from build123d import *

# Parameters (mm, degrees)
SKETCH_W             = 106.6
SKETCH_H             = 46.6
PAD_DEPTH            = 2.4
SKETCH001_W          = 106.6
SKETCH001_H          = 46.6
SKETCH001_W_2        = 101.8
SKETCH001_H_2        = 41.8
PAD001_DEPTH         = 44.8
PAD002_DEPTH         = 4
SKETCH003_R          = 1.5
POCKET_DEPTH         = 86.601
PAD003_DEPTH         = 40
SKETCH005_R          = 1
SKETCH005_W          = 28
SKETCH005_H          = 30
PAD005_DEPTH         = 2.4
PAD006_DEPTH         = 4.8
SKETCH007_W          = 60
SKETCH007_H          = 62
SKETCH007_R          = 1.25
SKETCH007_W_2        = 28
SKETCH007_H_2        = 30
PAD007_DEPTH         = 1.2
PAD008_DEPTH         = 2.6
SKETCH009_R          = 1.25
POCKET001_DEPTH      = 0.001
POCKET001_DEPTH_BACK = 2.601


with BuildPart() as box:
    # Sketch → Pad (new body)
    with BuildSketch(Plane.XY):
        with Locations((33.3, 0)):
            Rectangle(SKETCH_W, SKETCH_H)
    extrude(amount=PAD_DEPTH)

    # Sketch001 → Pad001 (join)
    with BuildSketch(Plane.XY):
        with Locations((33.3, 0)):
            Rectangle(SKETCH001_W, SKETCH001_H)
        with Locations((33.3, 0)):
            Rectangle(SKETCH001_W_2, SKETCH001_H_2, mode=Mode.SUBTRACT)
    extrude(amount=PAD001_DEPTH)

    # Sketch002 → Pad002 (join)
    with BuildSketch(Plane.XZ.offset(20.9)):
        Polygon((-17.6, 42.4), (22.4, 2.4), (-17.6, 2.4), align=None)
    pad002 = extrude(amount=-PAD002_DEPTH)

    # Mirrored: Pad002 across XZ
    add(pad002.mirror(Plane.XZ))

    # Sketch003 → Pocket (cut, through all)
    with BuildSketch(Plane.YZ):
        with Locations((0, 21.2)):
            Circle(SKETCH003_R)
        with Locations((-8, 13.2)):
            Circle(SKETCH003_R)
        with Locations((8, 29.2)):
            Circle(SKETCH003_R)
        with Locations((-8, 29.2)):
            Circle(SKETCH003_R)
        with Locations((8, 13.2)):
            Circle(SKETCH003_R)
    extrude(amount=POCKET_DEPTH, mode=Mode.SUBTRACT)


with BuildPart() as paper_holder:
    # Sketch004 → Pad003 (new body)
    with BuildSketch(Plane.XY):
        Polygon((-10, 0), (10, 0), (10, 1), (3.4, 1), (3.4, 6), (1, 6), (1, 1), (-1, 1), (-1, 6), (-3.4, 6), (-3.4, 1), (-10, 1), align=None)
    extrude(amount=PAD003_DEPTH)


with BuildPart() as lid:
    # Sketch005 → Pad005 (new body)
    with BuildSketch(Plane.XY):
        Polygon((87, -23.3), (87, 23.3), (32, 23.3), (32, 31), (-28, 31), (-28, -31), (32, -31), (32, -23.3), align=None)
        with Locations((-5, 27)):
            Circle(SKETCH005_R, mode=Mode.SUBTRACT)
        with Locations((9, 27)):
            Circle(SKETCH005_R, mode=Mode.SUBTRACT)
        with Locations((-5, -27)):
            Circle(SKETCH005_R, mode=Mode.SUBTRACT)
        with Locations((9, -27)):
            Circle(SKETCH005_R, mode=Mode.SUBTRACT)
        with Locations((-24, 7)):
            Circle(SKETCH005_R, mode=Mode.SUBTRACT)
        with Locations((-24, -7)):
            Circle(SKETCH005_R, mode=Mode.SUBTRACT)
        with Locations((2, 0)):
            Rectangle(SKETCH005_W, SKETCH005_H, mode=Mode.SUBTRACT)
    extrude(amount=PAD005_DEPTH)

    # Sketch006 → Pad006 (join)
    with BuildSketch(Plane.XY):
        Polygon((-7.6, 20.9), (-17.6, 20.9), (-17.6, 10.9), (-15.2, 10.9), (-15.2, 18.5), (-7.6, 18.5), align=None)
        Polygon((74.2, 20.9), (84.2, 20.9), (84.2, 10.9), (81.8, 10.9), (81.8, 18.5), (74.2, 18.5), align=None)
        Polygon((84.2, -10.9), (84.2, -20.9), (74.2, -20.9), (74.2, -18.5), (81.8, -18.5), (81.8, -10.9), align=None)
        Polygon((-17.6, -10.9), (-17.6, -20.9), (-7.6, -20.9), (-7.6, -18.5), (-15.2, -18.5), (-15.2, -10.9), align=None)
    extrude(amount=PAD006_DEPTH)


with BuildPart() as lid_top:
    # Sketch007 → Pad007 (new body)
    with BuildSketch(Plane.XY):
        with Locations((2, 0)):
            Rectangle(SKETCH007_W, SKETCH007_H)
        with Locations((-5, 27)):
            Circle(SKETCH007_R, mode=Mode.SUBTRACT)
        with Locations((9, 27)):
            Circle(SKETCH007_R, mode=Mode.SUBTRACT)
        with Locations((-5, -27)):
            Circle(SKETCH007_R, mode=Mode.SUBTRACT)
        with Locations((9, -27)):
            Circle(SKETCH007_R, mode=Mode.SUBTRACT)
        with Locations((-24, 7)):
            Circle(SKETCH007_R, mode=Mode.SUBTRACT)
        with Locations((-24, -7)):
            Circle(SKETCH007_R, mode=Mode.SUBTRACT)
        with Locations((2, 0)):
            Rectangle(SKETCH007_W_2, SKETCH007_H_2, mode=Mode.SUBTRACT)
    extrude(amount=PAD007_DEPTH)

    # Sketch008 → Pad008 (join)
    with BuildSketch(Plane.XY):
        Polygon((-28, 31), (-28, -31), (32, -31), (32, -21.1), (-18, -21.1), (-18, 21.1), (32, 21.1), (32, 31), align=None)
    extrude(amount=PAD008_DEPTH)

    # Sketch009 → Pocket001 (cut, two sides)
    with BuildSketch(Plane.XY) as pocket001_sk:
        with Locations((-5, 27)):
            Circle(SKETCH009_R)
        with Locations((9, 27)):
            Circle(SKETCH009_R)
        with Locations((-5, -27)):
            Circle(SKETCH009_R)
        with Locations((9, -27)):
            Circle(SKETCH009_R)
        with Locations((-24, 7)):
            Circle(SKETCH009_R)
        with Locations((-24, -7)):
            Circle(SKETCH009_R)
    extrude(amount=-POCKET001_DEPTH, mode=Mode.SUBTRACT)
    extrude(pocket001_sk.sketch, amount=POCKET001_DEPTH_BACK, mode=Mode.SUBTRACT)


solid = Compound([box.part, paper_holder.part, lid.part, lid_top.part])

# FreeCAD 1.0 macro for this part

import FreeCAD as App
import Part
import Sketcher
from FreeCAD import Vector


def add_polygon(sketch, points):
    """Adds a closed chain of lines whose ends are joined by coincident constraints."""
    first, n = sketch.GeometryCount, len(points)
    for a, b in zip(points, points[1:] + points[:1]):
        sketch.addGeometry(Part.LineSegment(App.Vector(*a, 0), App.Vector(*b, 0)), False)
    for i in range(n):
        sketch.addConstraint(Sketcher.Constraint("Coincident", first + i, 2, first + (i + 1) % n, 1))

doc = App.newDocument("Part")
body = doc.addObject("PartDesign::Body", "Body")

sketch1 = body.newObject("Sketcher::SketchObject", "Sketch")
sketch1.AttachmentSupport = (doc.getObject("XY_Plane"), [""])
sketch1.MapMode = "FlatFace"
add_polygon(sketch1, [(-20, 23.3), (-20, -23.3), (86.6, -23.3), (86.6, 23.3)])
sketch1.addConstraint([
    Sketcher.Constraint("Vertical", 0),
    Sketcher.Constraint("Horizontal", 1),
    Sketcher.Constraint("Vertical", 2),
    Sketcher.Constraint("Horizontal", 3),
    Sketcher.Constraint("DistanceX", 1, 1, 1, 2, 106.6),
    Sketcher.Constraint("DistanceY", 0, 2, 0, 1, 46.6),
    Sketcher.Constraint("DistanceX", 0, 2, -1, 1, 20.0),
    Sketcher.Constraint("DistanceY", 0, 2, -1, 1, 23.3),
])
pad1 = body.newObject("PartDesign::Pad", "Pad")
pad1.Profile = sketch1
pad1.Length = 2.4

sketch2 = body.newObject("Sketcher::SketchObject", "Sketch001")
sketch2.AttachmentSupport = (doc.getObject("XY_Plane"), [""])
sketch2.MapMode = "FlatFace"
add_polygon(sketch2, [(-20, 23.3), (-20, -23.3), (86.6, -23.3), (86.6, 23.3)])
add_polygon(sketch2, [(84.2, -20.9), (-17.6, -20.9), (-17.6, 20.9), (84.2, 20.9)])
sketch2.addConstraint([
    Sketcher.Constraint("Vertical", 0),
    Sketcher.Constraint("Horizontal", 1),
    Sketcher.Constraint("Vertical", 2),
    Sketcher.Constraint("Horizontal", 3),
    Sketcher.Constraint("Horizontal", 4),
    Sketcher.Constraint("Vertical", 5),
    Sketcher.Constraint("Horizontal", 6),
    Sketcher.Constraint("Vertical", 7),
    Sketcher.Constraint("DistanceX", 1, 1, 1, 2, 106.6),
    Sketcher.Constraint("DistanceX", 4, 2, 4, 1, 101.8),
    Sketcher.Constraint("DistanceY", 0, 2, 0, 1, 46.6),
    Sketcher.Constraint("DistanceY", 5, 1, 5, 2, 41.8),
    Sketcher.Constraint("DistanceX", 0, 2, -1, 1, 20.0),
    Sketcher.Constraint("DistanceY", 0, 2, -1, 1, 23.3),
    Sketcher.Constraint("DistanceX", 4, 2, -1, 1, 17.6),
    Sketcher.Constraint("DistanceY", 4, 2, -1, 1, 20.9),
])
pad2 = body.newObject("PartDesign::Pad", "Pad001")
pad2.Profile = sketch2
pad2.Length = 44.8

sketch3 = body.newObject("Sketcher::SketchObject", "Sketch002")
sketch3.AttachmentSupport = (doc.getObject("XZ_Plane"), [""])
sketch3.MapMode = "FlatFace"
sketch3.AttachmentOffset = App.Placement(Vector(0, 0, 20.9), App.Rotation())
add_polygon(sketch3, [(22.4, 2.4), (-17.6, 42.4), (-17.6, 2.4)])
sketch3.addConstraint([
    Sketcher.Constraint("Vertical", 1),
    Sketcher.Constraint("Horizontal", 2),
    Sketcher.Constraint("Equal", 2, 1),
    Sketcher.Constraint("DistanceX", 2, 1, 2, 2, 40.0),
    Sketcher.Constraint("DistanceX", 0, 2, -1, 1, 17.6),
    Sketcher.Constraint("DistanceY", -1, 1, 0, 2, 42.4),
])
pad3 = body.newObject("PartDesign::Pad", "Pad002")
pad3.Profile = sketch3
pad3.Length = 4
pad3.Reversed = True
doc.recompute()

mirrored = body.newObject("PartDesign::Mirrored", "Mirrored")
mirrored.Originals = [pad3]
mirrored.MirrorPlane = (doc.getObject("XZ_Plane"), [""])
body.Tip = mirrored

sketch4 = body.newObject("Sketcher::SketchObject", "Sketch003")
sketch4.AttachmentSupport = (doc.getObject("YZ_Plane"), [""])
sketch4.MapMode = "FlatFace"
sketch4.addGeometry([
    Part.Circle(Vector(0, 21.2, 0), Vector(0, 0, 1), 1.5),
    Part.Circle(Vector(-8, 13.2, 0), Vector(0, 0, 1), 1.5),
    Part.Circle(Vector(8, 29.2, 0), Vector(0, 0, 1), 1.5),
    Part.Circle(Vector(-8, 29.2, 0), Vector(0, 0, 1), 1.5),
    Part.Circle(Vector(8, 13.2, 0), Vector(0, 0, 1), 1.5),
], False)
sketch4.addConstraint([
    Sketcher.Constraint("Equal", 0, 1),
    Sketcher.Constraint("Equal", 1, 2),
    Sketcher.Constraint("Equal", 2, 3),
    Sketcher.Constraint("Equal", 3, 4),
    Sketcher.Constraint("Symmetric", 2, 3, 3, 3, -2),
    Sketcher.Constraint("Symmetric", 1, 3, 4, 3, -2),
    Sketcher.Constraint("PointOnObject", 0, 3, -2),
    Sketcher.Constraint("Vertical", 1, 3, 3, 3),
    Sketcher.Constraint("Diameter", 0, 3.0),
    Sketcher.Constraint("DistanceX", 1, 3, -1, 1, 8.0),
    Sketcher.Constraint("DistanceY", 1, 3, 0, 3, 8.0),
    Sketcher.Constraint("DistanceY", 0, 3, 2, 3, 8.0),
    Sketcher.Constraint("DistanceY", -1, 1, 0, 3, 21.2),
])
pocket1 = body.newObject("PartDesign::Pocket", "Pocket")
pocket1.Profile = sketch4
pocket1.Type = "ThroughAll"
pocket1.Reversed = True
body2 = doc.addObject("PartDesign::Body", "Body001")

sketch5 = body2.newObject("Sketcher::SketchObject", "Sketch004")
sketch5.AttachmentSupport = (doc.getObject("XY_Plane001"), [""])
sketch5.MapMode = "FlatFace"
add_polygon(sketch5, [(-10, 0), (10, 0), (10, 1), (3.4, 1), (3.4, 6), (1, 6), (1, 1), (-1, 1), (-1, 6), (-3.4, 6), (-3.4, 1), (-10, 1)])
sketch5.addConstraint([
    Sketcher.Constraint("Horizontal", 0),
    Sketcher.Constraint("Vertical", 1),
    Sketcher.Constraint("Horizontal", 2),
    Sketcher.Constraint("Vertical", 3),
    Sketcher.Constraint("Horizontal", 4),
    Sketcher.Constraint("Vertical", 5),
    Sketcher.Constraint("Horizontal", 6),
    Sketcher.Constraint("Vertical", 7),
    Sketcher.Constraint("Horizontal", 8),
    Sketcher.Constraint("Vertical", 9),
    Sketcher.Constraint("Horizontal", 10),
    Sketcher.Constraint("Vertical", 11),
    Sketcher.Constraint("Symmetric", 0, 2, 11, 2, -1, 1),
    Sketcher.Constraint("Symmetric", 4, 2, 7, 2, -2),
    Sketcher.Constraint("Symmetric", 2, 2, 9, 2, -2),
    Sketcher.Constraint("Horizontal", 2, 2, 5, 2),
    Sketcher.Constraint("DistanceX", 0, 1, 0, 2, 20.0),
    Sketcher.Constraint("DistanceX", 6, 2, 6, 1, 2.0),
    Sketcher.Constraint("DistanceY", 1, 1, 1, 2, 1.0),
    Sketcher.Constraint("DistanceY", 3, 1, 3, 2, 5.0),
    Sketcher.Constraint("DistanceX", 2, 2, 2, 1, 6.6),
])
pad4 = body2.newObject("PartDesign::Pad", "Pad003")
pad4.Profile = sketch5
pad4.Length = 40
body3 = doc.addObject("PartDesign::Body", "Body002")

sketch6 = body3.newObject("Sketcher::SketchObject", "Sketch005")
sketch6.AttachmentSupport = (doc.getObject("XY_Plane002"), [""])
sketch6.MapMode = "FlatFace"
add_polygon(sketch6, [(87, -23.3), (87, 23.3), (32, 23.3), (32, 31), (-28, 31), (-28, -31), (32, -31), (32, -23.3)])
sketch6.addGeometry(Part.Circle(Vector(-5, -27, 0), Vector(0, 0, 1), 1), False)
sketch6.addGeometry(Part.Circle(Vector(-24, -7, 0), Vector(0, 0, 1), 1), False)
sketch6.addGeometry(Part.Circle(Vector(9, -27, 0), Vector(0, 0, 1), 1), False)
sketch6.addGeometry(Part.Circle(Vector(-24, 7, 0), Vector(0, 0, 1), 1), False)
sketch6.addGeometry(Part.Circle(Vector(-5, 27, 0), Vector(0, 0, 1), 1), False)
add_polygon(sketch6, [(16, -15), (-12, -15), (-12, 15), (16, 15)])
sketch6.addGeometry(Part.Circle(Vector(9, 27, 0), Vector(0, 0, 1), 1), False)
sketch6.addConstraint([
    Sketcher.Constraint("Vertical", 0),
    Sketcher.Constraint("Horizontal", 1),
    Sketcher.Constraint("Vertical", 2),
    Sketcher.Constraint("Horizontal", 3),
    Sketcher.Constraint("Vertical", 4),
    Sketcher.Constraint("Horizontal", 5),
    Sketcher.Constraint("Vertical", 6),
    Sketcher.Constraint("Horizontal", 7),
    Sketcher.Constraint("Horizontal", 13),
    Sketcher.Constraint("Vertical", 14),
    Sketcher.Constraint("Horizontal", 15),
    Sketcher.Constraint("Vertical", 16),
    Sketcher.Constraint("Equal", 8, 9),
    Sketcher.Constraint("Equal", 9, 10),
    Sketcher.Constraint("Equal", 10, 11),
    Sketcher.Constraint("Equal", 11, 12),
    Sketcher.Constraint("Equal", 12, 17),
    Sketcher.Constraint("Symmetric", 9, 3, 11, 3, -1),
    Sketcher.Constraint("Symmetric", 8, 3, 12, 3, -1),
    Sketcher.Constraint("Symmetric", 10, 3, 17, 3, -1),
    Sketcher.Constraint("Symmetric", 2, 2, 5, 2, -1),
    Sketcher.Constraint("Horizontal", 8, 3, 10, 3),
    Sketcher.Constraint("Equal", 2, 6),
    Sketcher.Constraint("Diameter", 8, 2.0),
    Sketcher.Constraint("DistanceX", 1, 2, 1, 1, 55.0),
    Sketcher.Constraint("DistanceX", 3, 2, 3, 1, 60.0),
    Sketcher.Constraint("DistanceX", 13, 2, 13, 1, 28.0),
    Sketcher.Constraint("DistanceY", 4, 2, 4, 1, 62.0),
    Sketcher.Constraint("DistanceY", 14, 1, 14, 2, 30.0),
    Sketcher.Constraint("DistanceY", 0, 1, 0, 2, 46.6),
    Sketcher.Constraint("DistanceX", 8, 3, -1, 1, 5.0),
    Sketcher.Constraint("DistanceY", 8, 3, -1, 1, 27.0),
    Sketcher.Constraint("DistanceX", 9, 3, -1, 1, 24.0),
    Sketcher.Constraint("DistanceY", 9, 3, -1, 1, 7.0),
    Sketcher.Constraint("DistanceX", -1, 1, 10, 3, 9.0),
    Sketcher.Constraint("DistanceX", -1, 1, 0, 2, 87.0),
    Sketcher.Constraint("DistanceX", 13, 2, -1, 1, 12.0),
    Sketcher.Constraint("DistanceY", 13, 2, -1, 1, 15.0),
])
pad5 = body3.newObject("PartDesign::Pad", "Pad004")
pad5.Profile = sketch6
pad5.Length = 2.4

sketch7 = body3.newObject("Sketcher::SketchObject", "Sketch006")
sketch7.AttachmentSupport = (doc.getObject("XY_Plane002"), [""])
sketch7.MapMode = "FlatFace"
add_polygon(sketch7, [(-7.6, 20.9), (-17.6, 20.9), (-17.6, 10.9), (-15.2, 10.9), (-15.2, 18.5), (-7.6, 18.5)])
add_polygon(sketch7, [(84.2, 20.9), (74.2, 20.9), (74.2, 18.5), (81.8, 18.5), (81.8, 10.9), (84.2, 10.9)])
add_polygon(sketch7, [(84.2, -20.9), (84.2, -10.9), (81.8, -10.9), (81.8, -18.5), (74.2, -18.5), (74.2, -20.9)])
add_polygon(sketch7, [(-17.6, -10.9), (-17.6, -20.9), (-7.6, -20.9), (-7.6, -18.5), (-15.2, -18.5), (-15.2, -10.9)])
sketch7.addConstraint([
    Sketcher.Constraint("Horizontal", 0),
    Sketcher.Constraint("Vertical", 1),
    Sketcher.Constraint("Horizontal", 2),
    Sketcher.Constraint("Vertical", 3),
    Sketcher.Constraint("Horizontal", 4),
    Sketcher.Constraint("Vertical", 5),
    Sketcher.Constraint("Horizontal", 6),
    Sketcher.Constraint("Vertical", 7),
    Sketcher.Constraint("Horizontal", 8),
    Sketcher.Constraint("Vertical", 9),
    Sketcher.Constraint("Horizontal", 10),
    Sketcher.Constraint("Vertical", 11),
    Sketcher.Constraint("Vertical", 12),
    Sketcher.Constraint("Horizontal", 13),
    Sketcher.Constraint("Vertical", 14),
    Sketcher.Constraint("Horizontal", 15),
    Sketcher.Constraint("Vertical", 16),
    Sketcher.Constraint("Horizontal", 17),
    Sketcher.Constraint("Vertical", 18),
    Sketcher.Constraint("Horizontal", 19),
    Sketcher.Constraint("Vertical", 20),
    Sketcher.Constraint("Horizontal", 21),
    Sketcher.Constraint("Vertical", 22),
    Sketcher.Constraint("Horizontal", 23),
    Sketcher.Constraint("Symmetric", 10, 2, 12, 2, -1),
    Sketcher.Constraint("Symmetric", 8, 2, 14, 2, -1),
    Sketcher.Constraint("Symmetric", 6, 2, 16, 2, -1),
    Sketcher.Constraint("Symmetric", 0, 2, 18, 2, -1),
    Sketcher.Constraint("Symmetric", 4, 2, 20, 2, -1),
    Sketcher.Constraint("Symmetric", 2, 2, 22, 2, -1),
    Sketcher.Constraint("Horizontal", 5, 2, 6, 2),
    Sketcher.Constraint("Horizontal", 4, 2, 7, 2),
    Sketcher.Constraint("Horizontal", 2, 2, 9, 2),
    Sketcher.Constraint("Equal", 0, 6),
    Sketcher.Constraint("Equal", 4, 8),
    Sketcher.Constraint("Equal", 19, 1),
    Sketcher.Constraint("Equal", 21, 3),
    Sketcher.Constraint("DistanceX", 0, 2, 0, 1, 10.0),
    Sketcher.Constraint("DistanceX", 2, 1, 2, 2, 2.4),
    Sketcher.Constraint("DistanceX", 3, 2, 8, 2, 97.0),
    Sketcher.Constraint("DistanceY", 14, 2, 8, 2, 37.0),
    Sketcher.Constraint("DistanceX", 0, 2, -1, 1, 17.6),
])
pad6 = body3.newObject("PartDesign::Pad", "Pad005")
pad6.Profile = sketch7
pad6.Length = 4.8
body4 = doc.addObject("PartDesign::Body", "Body003")

sketch8 = body4.newObject("Sketcher::SketchObject", "Sketch007")
sketch8.AttachmentSupport = (doc.getObject("XY_Plane003"), [""])
sketch8.MapMode = "FlatFace"
add_polygon(sketch8, [(-28, 31), (-28, -31), (32, -31), (32, 31)])
sketch8.addGeometry(Part.Circle(Vector(-5, -27, 0), Vector(0, 0, 1), 1.25), False)
sketch8.addGeometry(Part.Circle(Vector(-24, -7, 0), Vector(0, 0, 1), 1.25), False)
sketch8.addGeometry(Part.Circle(Vector(9, -27, 0), Vector(0, 0, 1), 1.25), False)
sketch8.addGeometry(Part.Circle(Vector(-24, 7, 0), Vector(0, 0, 1), 1.25), False)
sketch8.addGeometry(Part.Circle(Vector(-5, 27, 0), Vector(0, 0, 1), 1.25), False)
add_polygon(sketch8, [(16, -15), (-12, -15), (-12, 15), (16, 15)])
sketch8.addGeometry(Part.Circle(Vector(9, 27, 0), Vector(0, 0, 1), 1.25), False)
sketch8.addConstraint([
    Sketcher.Constraint("Vertical", 0),
    Sketcher.Constraint("Horizontal", 1),
    Sketcher.Constraint("Vertical", 2),
    Sketcher.Constraint("Horizontal", 3),
    Sketcher.Constraint("Horizontal", 9),
    Sketcher.Constraint("Vertical", 10),
    Sketcher.Constraint("Horizontal", 11),
    Sketcher.Constraint("Vertical", 12),
    Sketcher.Constraint("Equal", 4, 5),
    Sketcher.Constraint("Equal", 5, 6),
    Sketcher.Constraint("Equal", 6, 7),
    Sketcher.Constraint("Equal", 7, 8),
    Sketcher.Constraint("Equal", 8, 13),
    Sketcher.Constraint("Symmetric", 5, 3, 7, 3, -1),
    Sketcher.Constraint("Symmetric", 4, 3, 8, 3, -1),
    Sketcher.Constraint("Symmetric", 6, 3, 13, 3, -1),
    Sketcher.Constraint("Horizontal", 4, 3, 6, 3),
    Sketcher.Constraint("Diameter", 4, 2.5),
    Sketcher.Constraint("DistanceX", 1, 1, 1, 2, 60.0),
    Sketcher.Constraint("DistanceX", 9, 2, 9, 1, 28.0),
    Sketcher.Constraint("DistanceY", 0, 2, 0, 1, 62.0),
    Sketcher.Constraint("DistanceY", 10, 1, 10, 2, 30.0),
    Sketcher.Constraint("DistanceX", 4, 3, -1, 1, 5.0),
    Sketcher.Constraint("DistanceY", 4, 3, -1, 1, 27.0),
    Sketcher.Constraint("DistanceX", 5, 3, -1, 1, 24.0),
    Sketcher.Constraint("DistanceY", 5, 3, -1, 1, 7.0),
    Sketcher.Constraint("DistanceX", -1, 1, 6, 3, 9.0),
    Sketcher.Constraint("DistanceX", 0, 2, -1, 1, 28.0),
    Sketcher.Constraint("DistanceY", 0, 2, -1, 1, 31.0),
    Sketcher.Constraint("DistanceX", 9, 2, -1, 1, 12.0),
    Sketcher.Constraint("DistanceY", 9, 2, -1, 1, 15.0),
])
pad7 = body4.newObject("PartDesign::Pad", "Pad006")
pad7.Profile = sketch8
pad7.Length = 1.2

sketch9 = body4.newObject("Sketcher::SketchObject", "Sketch008")
sketch9.AttachmentSupport = (doc.getObject("XY_Plane003"), [""])
sketch9.MapMode = "FlatFace"
add_polygon(sketch9, [(-28, 31), (-28, -31), (32, -31), (32, -21.1), (-18, -21.1), (-18, 21.1), (32, 21.1), (32, 31)])
sketch9.addConstraint([
    Sketcher.Constraint("Vertical", 0),
    Sketcher.Constraint("Horizontal", 1),
    Sketcher.Constraint("Vertical", 2),
    Sketcher.Constraint("Horizontal", 3),
    Sketcher.Constraint("Vertical", 4),
    Sketcher.Constraint("Horizontal", 5),
    Sketcher.Constraint("Vertical", 6),
    Sketcher.Constraint("Horizontal", 7),
    Sketcher.Constraint("Symmetric", 2, 2, 5, 2, -1),
    Sketcher.Constraint("Equal", 2, 6),
    Sketcher.Constraint("DistanceX", 1, 1, 1, 2, 60.0),
    Sketcher.Constraint("DistanceX", 3, 2, 3, 1, 50.0),
    Sketcher.Constraint("DistanceY", 0, 2, 0, 1, 62.0),
    Sketcher.Constraint("DistanceY", 2, 1, 2, 2, 9.9),
    Sketcher.Constraint("DistanceX", 0, 2, -1, 1, 28.0),
])
pad8 = body4.newObject("PartDesign::Pad", "Pad007")
pad8.Profile = sketch9
pad8.Length = 2.6

sketch10 = body4.newObject("Sketcher::SketchObject", "Sketch009")
sketch10.AttachmentSupport = (doc.getObject("XY_Plane003"), [""])
sketch10.MapMode = "FlatFace"
sketch10.addGeometry([
    Part.Circle(Vector(-5, 27, 0), Vector(0, 0, 1), 1.25),
    Part.Circle(Vector(9, 27, 0), Vector(0, 0, 1), 1.25),
    Part.Circle(Vector(-5, -27, 0), Vector(0, 0, 1), 1.25),
    Part.Circle(Vector(9, -27, 0), Vector(0, 0, 1), 1.25),
    Part.Circle(Vector(-24, 7, 0), Vector(0, 0, 1), 1.25),
    Part.Circle(Vector(-24, -7, 0), Vector(0, 0, 1), 1.25),
], False)
sketch10.addConstraint([
    Sketcher.Constraint("Equal", 0, 1),
    Sketcher.Constraint("Equal", 1, 2),
    Sketcher.Constraint("Equal", 2, 3),
    Sketcher.Constraint("Equal", 3, 4),
    Sketcher.Constraint("Equal", 4, 5),
    Sketcher.Constraint("Symmetric", 0, 3, 2, 3, -1),
    Sketcher.Constraint("Symmetric", 1, 3, 3, 3, -1),
    Sketcher.Constraint("Symmetric", 4, 3, 5, 3, -1),
    Sketcher.Constraint("Horizontal", 0, 3, 1, 3),
    Sketcher.Constraint("Diameter", 0, 2.5),
    Sketcher.Constraint("DistanceX", 0, 3, -1, 1, 5.0),
    Sketcher.Constraint("DistanceY", -1, 1, 0, 3, 27.0),
    Sketcher.Constraint("DistanceX", -1, 1, 1, 3, 9.0),
    Sketcher.Constraint("DistanceX", 4, 3, -1, 1, 24.0),
    Sketcher.Constraint("DistanceY", -1, 1, 4, 3, 7.0),
])
pocket2 = body4.newObject("PartDesign::Pocket", "Pocket001")
pocket2.Profile = sketch10
pocket2.Type = "ThroughAll"
pocket2.Midplane = True

doc.recompute()
